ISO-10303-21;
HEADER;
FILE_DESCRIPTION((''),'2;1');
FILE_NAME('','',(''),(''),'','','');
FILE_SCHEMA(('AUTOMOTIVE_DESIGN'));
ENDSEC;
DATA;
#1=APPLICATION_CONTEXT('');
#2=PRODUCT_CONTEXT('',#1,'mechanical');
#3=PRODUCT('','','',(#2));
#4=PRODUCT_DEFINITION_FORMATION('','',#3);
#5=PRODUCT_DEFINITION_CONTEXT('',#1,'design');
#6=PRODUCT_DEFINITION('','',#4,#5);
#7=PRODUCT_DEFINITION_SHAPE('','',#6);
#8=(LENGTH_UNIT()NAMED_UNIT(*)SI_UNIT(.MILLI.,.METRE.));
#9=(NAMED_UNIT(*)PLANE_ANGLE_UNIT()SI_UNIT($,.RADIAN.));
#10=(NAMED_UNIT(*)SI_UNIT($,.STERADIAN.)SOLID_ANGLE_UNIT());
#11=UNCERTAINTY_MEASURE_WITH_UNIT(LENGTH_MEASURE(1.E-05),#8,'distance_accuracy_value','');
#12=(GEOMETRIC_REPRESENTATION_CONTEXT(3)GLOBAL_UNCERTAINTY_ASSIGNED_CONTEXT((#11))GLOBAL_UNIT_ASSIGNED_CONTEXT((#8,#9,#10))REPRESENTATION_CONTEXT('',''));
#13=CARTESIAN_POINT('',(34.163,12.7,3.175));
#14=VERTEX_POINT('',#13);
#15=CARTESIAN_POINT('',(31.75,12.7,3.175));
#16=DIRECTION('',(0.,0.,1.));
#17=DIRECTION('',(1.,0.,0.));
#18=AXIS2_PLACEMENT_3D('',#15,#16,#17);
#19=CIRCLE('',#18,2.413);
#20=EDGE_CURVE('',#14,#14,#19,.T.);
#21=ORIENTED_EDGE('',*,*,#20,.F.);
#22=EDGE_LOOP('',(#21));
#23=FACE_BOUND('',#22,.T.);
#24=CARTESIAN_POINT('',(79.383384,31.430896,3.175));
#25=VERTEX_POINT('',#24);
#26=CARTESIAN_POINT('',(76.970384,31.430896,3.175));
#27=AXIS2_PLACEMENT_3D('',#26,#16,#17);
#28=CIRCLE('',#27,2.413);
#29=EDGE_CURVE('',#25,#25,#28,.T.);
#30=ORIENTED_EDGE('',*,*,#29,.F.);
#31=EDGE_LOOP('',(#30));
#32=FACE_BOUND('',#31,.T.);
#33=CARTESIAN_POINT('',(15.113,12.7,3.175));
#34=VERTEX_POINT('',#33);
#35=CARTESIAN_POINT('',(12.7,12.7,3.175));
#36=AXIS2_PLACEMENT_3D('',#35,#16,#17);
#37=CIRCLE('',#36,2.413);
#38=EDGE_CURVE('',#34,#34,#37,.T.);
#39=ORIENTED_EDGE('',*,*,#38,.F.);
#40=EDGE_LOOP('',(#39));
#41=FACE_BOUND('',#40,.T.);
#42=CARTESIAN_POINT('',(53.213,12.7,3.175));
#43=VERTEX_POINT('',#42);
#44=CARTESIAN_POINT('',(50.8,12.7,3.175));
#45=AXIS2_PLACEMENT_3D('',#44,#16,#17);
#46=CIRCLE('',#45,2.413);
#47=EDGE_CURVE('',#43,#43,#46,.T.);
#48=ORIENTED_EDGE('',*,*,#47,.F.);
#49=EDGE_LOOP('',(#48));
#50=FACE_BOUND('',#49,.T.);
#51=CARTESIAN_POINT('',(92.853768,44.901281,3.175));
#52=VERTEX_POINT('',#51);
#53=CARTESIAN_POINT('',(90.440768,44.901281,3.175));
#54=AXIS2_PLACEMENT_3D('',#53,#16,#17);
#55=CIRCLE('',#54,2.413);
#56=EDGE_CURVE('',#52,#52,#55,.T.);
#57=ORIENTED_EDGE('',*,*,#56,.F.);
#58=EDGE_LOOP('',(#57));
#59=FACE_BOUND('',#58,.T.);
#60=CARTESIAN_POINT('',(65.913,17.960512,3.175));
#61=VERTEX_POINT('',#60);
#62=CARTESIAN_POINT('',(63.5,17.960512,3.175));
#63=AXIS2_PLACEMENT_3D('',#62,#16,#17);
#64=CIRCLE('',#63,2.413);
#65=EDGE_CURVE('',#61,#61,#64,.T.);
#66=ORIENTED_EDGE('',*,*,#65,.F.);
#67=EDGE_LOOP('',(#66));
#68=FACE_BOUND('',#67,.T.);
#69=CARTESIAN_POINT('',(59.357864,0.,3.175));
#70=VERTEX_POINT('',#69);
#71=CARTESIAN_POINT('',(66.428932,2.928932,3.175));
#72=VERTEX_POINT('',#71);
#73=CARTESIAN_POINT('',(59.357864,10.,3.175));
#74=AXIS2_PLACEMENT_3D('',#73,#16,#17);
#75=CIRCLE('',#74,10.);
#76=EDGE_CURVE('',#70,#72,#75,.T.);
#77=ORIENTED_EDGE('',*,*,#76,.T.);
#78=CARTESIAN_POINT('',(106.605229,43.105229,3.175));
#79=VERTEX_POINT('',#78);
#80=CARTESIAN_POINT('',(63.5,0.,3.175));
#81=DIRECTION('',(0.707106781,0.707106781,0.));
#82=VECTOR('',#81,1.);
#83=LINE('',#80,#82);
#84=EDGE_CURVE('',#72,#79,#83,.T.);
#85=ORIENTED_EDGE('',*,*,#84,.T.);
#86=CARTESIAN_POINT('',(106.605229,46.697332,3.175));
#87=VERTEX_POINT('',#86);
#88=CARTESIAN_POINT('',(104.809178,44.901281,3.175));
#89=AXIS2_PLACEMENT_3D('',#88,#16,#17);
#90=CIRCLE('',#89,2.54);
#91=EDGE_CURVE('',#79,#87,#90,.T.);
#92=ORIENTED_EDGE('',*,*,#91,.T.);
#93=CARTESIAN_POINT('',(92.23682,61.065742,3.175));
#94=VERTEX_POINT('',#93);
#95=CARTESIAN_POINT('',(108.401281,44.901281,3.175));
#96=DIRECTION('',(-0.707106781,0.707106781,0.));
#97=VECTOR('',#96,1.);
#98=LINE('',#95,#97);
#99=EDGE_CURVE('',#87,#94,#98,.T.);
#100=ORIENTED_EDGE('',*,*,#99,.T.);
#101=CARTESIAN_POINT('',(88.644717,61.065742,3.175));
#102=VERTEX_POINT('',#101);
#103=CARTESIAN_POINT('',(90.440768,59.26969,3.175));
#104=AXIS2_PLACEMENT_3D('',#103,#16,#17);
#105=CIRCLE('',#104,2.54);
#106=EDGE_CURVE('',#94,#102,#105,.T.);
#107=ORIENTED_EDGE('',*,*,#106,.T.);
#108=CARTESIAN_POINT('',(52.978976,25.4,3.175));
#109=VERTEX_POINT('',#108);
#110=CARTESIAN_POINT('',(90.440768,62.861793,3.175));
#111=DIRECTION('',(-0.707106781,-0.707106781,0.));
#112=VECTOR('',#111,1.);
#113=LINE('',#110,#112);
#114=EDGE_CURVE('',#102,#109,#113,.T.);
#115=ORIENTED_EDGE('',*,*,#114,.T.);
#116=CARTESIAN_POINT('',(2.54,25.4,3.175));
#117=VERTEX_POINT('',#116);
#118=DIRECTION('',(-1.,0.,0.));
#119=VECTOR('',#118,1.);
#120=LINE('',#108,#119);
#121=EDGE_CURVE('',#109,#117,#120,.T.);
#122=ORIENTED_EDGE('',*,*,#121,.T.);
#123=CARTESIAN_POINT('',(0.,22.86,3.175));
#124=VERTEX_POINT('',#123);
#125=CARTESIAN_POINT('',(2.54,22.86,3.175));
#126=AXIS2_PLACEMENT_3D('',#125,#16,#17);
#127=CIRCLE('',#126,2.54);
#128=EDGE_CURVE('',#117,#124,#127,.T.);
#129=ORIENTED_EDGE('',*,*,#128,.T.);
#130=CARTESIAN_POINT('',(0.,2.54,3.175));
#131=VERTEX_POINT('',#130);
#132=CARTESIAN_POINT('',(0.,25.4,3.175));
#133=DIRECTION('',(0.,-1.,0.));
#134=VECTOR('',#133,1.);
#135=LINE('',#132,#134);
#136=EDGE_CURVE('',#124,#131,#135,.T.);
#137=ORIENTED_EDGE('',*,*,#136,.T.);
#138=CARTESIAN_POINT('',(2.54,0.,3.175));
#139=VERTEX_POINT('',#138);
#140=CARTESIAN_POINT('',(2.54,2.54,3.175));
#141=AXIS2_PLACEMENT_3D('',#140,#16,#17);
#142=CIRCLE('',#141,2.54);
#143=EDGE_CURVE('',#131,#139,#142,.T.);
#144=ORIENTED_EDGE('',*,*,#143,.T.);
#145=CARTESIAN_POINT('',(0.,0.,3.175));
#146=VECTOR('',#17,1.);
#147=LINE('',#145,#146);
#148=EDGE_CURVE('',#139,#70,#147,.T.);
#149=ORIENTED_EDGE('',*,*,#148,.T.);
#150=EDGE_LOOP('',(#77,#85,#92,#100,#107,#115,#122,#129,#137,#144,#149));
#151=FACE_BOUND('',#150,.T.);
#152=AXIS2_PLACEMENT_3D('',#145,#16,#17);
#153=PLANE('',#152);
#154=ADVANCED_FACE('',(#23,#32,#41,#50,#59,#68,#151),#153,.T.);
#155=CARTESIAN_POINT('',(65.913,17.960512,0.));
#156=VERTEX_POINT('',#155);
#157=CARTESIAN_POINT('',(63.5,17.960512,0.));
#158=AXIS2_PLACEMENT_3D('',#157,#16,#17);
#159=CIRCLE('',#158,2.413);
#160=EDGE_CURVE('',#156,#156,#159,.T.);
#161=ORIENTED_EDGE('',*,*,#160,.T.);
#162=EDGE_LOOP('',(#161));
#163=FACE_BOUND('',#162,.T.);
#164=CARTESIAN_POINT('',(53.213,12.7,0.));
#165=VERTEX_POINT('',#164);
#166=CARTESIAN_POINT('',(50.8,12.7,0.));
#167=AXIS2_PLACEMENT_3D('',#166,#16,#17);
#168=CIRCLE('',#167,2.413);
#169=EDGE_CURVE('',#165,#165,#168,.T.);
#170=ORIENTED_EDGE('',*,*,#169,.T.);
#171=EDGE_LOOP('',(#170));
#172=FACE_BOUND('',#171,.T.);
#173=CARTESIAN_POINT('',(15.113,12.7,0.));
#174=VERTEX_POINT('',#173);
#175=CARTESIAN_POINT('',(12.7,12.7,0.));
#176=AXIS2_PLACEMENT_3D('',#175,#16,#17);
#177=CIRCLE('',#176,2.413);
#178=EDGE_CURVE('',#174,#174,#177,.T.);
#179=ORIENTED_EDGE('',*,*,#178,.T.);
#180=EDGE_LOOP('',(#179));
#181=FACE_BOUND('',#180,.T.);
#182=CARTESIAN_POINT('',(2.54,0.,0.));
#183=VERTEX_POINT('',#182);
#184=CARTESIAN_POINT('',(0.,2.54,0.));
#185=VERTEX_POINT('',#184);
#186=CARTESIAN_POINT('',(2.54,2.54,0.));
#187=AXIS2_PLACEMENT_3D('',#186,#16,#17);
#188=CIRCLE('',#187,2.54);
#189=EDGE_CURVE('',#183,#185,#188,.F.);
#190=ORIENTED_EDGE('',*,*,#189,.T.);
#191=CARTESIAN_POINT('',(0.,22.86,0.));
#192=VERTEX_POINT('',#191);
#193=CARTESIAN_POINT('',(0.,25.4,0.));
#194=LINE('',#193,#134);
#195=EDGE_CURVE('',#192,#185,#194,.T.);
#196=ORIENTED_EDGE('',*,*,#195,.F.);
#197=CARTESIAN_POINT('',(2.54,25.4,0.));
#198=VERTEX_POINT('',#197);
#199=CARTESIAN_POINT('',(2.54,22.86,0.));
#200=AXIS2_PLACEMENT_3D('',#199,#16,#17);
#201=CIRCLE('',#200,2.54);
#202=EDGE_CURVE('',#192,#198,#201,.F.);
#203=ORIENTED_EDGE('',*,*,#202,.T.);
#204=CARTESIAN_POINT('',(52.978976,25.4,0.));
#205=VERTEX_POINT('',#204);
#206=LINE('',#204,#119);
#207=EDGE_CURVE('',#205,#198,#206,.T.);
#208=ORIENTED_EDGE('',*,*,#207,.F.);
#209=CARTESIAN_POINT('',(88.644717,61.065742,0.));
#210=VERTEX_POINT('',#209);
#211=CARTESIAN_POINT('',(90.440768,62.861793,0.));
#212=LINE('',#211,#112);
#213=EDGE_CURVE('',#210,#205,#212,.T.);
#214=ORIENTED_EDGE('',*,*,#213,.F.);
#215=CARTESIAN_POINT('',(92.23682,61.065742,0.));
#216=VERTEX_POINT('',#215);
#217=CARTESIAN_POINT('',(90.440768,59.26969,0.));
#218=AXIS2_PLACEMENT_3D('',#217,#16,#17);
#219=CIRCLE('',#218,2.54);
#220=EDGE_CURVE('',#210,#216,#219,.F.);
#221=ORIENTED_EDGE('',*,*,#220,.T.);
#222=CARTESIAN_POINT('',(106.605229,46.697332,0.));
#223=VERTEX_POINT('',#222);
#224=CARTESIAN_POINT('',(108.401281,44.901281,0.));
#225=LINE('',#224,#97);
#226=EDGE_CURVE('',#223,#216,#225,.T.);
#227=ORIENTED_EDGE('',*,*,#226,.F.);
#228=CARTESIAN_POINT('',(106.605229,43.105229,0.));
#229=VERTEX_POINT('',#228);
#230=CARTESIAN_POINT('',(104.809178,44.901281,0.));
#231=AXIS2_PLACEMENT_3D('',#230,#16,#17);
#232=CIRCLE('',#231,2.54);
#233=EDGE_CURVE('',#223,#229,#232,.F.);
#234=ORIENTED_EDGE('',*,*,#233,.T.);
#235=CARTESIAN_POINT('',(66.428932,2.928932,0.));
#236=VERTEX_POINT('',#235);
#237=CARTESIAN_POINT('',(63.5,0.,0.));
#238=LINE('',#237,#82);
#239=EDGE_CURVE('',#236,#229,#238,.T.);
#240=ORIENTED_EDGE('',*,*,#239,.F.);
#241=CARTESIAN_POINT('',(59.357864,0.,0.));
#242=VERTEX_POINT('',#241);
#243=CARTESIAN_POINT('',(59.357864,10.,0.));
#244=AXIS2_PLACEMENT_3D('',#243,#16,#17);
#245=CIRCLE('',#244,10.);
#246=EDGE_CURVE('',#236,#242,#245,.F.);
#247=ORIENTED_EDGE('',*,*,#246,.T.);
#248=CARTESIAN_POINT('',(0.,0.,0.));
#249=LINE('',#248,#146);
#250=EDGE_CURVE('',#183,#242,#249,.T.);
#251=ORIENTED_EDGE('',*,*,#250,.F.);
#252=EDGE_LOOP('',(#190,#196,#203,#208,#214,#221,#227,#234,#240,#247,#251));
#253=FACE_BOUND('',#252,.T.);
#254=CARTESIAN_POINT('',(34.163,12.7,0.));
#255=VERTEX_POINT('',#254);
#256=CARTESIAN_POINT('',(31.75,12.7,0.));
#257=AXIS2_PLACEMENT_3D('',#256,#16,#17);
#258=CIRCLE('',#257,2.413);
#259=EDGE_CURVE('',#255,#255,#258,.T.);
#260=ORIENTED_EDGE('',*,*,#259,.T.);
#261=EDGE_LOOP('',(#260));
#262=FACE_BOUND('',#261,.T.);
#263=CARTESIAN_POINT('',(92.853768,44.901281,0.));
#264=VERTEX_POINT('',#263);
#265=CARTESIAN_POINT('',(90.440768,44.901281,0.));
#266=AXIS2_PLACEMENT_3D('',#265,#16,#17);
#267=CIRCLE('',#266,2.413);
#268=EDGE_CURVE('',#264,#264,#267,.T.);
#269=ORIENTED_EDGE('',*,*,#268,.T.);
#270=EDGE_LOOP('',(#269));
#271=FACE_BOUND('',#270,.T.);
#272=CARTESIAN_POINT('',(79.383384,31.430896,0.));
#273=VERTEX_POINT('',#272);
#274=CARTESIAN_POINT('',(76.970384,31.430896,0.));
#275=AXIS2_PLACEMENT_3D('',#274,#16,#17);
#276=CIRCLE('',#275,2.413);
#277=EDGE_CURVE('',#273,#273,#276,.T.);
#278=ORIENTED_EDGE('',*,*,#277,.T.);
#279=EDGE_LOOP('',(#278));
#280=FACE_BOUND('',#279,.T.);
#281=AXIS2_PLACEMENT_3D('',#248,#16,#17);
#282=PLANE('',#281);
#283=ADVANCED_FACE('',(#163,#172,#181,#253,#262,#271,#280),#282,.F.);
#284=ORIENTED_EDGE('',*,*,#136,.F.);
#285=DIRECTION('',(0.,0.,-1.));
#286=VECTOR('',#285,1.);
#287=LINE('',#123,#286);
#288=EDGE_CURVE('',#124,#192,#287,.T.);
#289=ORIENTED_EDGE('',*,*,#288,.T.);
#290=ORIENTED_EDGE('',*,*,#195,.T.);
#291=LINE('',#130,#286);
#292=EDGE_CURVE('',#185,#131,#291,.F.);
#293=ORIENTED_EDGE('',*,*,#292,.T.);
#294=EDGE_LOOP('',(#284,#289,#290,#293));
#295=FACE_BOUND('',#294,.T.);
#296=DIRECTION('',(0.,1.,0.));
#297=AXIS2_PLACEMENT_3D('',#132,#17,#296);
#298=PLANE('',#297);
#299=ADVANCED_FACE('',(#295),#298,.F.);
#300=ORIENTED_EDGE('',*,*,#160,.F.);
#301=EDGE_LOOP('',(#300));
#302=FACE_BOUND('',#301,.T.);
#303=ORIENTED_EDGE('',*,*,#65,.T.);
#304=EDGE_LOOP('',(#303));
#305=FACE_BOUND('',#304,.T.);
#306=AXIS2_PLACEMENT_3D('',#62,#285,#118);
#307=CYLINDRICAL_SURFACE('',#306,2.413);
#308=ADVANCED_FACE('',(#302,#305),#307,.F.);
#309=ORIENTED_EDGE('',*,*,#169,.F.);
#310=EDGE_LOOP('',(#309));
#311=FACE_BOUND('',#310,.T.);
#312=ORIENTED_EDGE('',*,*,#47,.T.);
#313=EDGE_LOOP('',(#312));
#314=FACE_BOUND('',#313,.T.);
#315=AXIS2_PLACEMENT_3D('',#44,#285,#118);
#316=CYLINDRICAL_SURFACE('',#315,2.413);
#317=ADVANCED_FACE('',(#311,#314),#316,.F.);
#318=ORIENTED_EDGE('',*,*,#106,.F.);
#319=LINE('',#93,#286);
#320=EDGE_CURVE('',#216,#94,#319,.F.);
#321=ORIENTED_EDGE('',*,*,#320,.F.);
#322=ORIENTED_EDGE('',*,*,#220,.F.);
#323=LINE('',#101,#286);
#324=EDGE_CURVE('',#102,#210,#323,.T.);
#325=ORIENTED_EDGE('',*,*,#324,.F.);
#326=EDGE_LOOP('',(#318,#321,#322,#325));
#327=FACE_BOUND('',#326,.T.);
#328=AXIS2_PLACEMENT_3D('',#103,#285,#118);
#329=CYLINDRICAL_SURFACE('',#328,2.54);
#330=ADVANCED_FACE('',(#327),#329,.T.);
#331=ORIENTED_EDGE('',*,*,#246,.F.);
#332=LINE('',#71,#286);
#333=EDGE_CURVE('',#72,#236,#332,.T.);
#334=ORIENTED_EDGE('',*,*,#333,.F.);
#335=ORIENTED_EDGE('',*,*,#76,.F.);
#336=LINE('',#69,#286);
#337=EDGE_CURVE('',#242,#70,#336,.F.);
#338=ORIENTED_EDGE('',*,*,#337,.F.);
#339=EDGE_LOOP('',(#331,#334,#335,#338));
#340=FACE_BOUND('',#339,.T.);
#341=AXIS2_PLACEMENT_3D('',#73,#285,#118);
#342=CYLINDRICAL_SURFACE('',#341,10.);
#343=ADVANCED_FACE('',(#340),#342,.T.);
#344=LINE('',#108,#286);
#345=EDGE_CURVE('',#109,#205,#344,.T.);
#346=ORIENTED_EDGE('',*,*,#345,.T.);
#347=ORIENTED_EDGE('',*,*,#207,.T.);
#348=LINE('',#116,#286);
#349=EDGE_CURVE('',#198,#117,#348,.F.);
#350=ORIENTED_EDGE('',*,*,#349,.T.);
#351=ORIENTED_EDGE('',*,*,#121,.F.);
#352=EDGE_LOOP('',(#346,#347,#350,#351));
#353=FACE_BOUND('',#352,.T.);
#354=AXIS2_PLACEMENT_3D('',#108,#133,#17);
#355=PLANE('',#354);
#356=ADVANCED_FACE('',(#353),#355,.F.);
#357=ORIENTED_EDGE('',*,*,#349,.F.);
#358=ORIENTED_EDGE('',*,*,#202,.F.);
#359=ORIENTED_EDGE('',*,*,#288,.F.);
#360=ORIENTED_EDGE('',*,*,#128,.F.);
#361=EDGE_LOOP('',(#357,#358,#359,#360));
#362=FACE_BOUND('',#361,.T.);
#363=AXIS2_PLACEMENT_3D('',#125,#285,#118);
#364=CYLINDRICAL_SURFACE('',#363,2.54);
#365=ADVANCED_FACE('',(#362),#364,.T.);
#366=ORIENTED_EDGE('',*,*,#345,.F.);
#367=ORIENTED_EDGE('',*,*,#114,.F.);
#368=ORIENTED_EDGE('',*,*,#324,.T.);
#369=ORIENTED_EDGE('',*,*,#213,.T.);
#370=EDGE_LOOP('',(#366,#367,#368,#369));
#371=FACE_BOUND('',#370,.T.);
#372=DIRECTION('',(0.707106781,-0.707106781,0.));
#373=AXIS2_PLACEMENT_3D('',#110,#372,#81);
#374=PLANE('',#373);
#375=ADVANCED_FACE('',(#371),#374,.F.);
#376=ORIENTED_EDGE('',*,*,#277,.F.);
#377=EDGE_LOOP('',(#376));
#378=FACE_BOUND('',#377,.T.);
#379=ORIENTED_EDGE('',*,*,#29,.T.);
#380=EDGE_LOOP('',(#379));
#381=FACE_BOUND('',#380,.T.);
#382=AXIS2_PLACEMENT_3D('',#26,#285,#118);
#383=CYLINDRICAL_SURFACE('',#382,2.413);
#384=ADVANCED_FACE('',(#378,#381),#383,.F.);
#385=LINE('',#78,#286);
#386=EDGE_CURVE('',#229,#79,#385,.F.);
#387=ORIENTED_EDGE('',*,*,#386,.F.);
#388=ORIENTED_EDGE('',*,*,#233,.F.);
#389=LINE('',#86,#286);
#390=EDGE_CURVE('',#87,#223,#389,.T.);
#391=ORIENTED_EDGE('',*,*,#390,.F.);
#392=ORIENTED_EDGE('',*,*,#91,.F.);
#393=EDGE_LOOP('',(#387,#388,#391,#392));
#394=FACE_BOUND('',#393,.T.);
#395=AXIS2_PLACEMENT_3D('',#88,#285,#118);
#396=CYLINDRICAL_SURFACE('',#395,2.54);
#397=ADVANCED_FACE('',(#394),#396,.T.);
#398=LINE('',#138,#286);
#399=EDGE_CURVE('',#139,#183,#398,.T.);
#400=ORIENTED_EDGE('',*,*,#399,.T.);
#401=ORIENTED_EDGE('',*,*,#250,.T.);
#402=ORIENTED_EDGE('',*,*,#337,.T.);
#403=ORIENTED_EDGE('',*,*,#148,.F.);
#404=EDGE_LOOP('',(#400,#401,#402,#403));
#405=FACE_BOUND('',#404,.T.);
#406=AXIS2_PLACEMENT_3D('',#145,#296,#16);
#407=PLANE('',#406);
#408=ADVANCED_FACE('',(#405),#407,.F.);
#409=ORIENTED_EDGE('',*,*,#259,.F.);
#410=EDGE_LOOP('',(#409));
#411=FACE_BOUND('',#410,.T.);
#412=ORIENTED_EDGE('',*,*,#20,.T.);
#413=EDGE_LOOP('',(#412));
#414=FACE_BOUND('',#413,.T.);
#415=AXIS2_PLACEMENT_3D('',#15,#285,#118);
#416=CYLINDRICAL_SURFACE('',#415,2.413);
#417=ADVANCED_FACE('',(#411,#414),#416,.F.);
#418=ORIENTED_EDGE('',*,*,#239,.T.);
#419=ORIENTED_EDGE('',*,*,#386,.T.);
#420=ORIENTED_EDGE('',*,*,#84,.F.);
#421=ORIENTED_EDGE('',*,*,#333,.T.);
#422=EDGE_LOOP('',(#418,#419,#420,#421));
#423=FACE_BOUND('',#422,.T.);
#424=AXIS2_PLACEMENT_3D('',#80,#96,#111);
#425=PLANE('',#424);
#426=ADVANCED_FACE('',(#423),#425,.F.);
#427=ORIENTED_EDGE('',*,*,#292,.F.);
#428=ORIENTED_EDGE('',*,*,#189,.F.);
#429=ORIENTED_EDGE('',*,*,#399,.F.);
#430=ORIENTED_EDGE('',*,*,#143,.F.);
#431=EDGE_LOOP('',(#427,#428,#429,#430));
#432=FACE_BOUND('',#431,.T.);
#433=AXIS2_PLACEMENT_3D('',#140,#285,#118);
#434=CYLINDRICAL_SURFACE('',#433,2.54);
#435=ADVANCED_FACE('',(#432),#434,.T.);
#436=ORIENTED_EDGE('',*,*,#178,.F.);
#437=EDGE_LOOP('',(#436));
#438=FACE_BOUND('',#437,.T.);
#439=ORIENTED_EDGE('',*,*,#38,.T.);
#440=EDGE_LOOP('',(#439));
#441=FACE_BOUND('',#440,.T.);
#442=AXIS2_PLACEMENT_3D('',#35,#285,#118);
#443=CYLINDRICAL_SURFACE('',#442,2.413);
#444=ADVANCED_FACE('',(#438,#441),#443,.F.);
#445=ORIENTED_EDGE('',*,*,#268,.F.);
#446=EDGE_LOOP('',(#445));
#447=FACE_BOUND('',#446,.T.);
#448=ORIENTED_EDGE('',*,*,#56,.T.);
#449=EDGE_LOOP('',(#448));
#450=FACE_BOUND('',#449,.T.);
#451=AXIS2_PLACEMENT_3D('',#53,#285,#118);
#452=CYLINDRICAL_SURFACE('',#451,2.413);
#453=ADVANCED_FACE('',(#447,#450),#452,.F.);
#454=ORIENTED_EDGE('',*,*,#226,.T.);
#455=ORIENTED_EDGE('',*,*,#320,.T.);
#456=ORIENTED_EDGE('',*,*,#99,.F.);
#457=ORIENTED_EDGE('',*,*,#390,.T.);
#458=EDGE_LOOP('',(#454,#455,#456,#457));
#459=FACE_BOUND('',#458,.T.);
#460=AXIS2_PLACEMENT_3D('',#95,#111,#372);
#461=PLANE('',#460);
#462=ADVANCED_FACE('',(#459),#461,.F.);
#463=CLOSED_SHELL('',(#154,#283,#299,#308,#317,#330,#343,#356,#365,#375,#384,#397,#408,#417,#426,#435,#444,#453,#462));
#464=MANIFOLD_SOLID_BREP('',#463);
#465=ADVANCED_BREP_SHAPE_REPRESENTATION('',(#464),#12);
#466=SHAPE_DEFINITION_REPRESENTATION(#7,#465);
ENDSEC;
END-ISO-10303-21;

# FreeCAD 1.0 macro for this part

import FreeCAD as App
import Part
import Sketcher

V = App.Vector
Q = App.Units.Quantity


def edges_at(feature, points):
    """Names of the edges that pass closest to the given points."""
    edges = feature.Shape.Edges
    near = lambda p: min(range(len(edges)), key=lambda i: edges[i].distToShape(Part.Vertex(*p))[0])
    return sorted({f"Edge{near(p) + 1}" for p in points})

doc = App.newDocument("Part")
body = doc.addObject("PartDesign::Body", "Body")

# Sketch on XY plane
sketch1 = body.newObject("Sketcher::SketchObject", "Sketch")
sketch1.AttachmentSupport = (doc.getObject("XY_Plane"), [""])
sketch1.MapMode = "FlatFace"
sketch1.addGeometry([
    Part.LineSegment(V(0, 0, 0), V(63.5, 0, 0)),  # 0
    Part.LineSegment(V(63.5, 0, 0), V(108.401281, 44.901281, 0)),  # 1
    Part.LineSegment(V(108.401281, 44.901281, 0), V(90.440768, 62.861793, 0)),  # 2
    Part.LineSegment(V(90.440768, 62.861793, 0), V(52.978976, 25.4, 0)),  # 3
    Part.LineSegment(V(52.978976, 25.4, 0), V(0, 25.4, 0)),  # 4
    Part.LineSegment(V(0, 25.4, 0), V(0, 0, 0)),  # 5
    Part.Circle(V(12.7, 12.7, 0), V(0, 0, 1), 2.413),  # 6
    Part.Circle(V(31.75, 12.7, 0), V(0, 0, 1), 2.413),  # 7
    Part.Circle(V(50.8, 12.7, 0), V(0, 0, 1), 2.413),  # 8
    Part.Circle(V(63.5, 17.960512, 0), V(0, 0, 1), 2.413),  # 9
    Part.Circle(V(76.970384, 31.430896, 0), V(0, 0, 1), 2.413),  # 10
    Part.Circle(V(90.440768, 44.901281, 0), V(0, 0, 1), 2.413),  # 11
], False)
sketch1.addConstraint([
    Sketcher.Constraint("Coincident", 0, 2, 1, 1),
    Sketcher.Constraint("Coincident", 1, 2, 2, 1),
    Sketcher.Constraint("Coincident", 2, 2, 3, 1),
    Sketcher.Constraint("Coincident", 3, 2, 4, 1),
    Sketcher.Constraint("Coincident", 4, 2, 5, 1),
    Sketcher.Constraint("Coincident", 5, 2, 0, 1),
    Sketcher.Constraint("Horizontal", 0),
    Sketcher.Constraint("Horizontal", 4),
    Sketcher.Constraint("Vertical", 5),
    Sketcher.Constraint("Coincident", 5, 2, -1, 1),
    Sketcher.Constraint("Equal", 6, 7),
    Sketcher.Constraint("Equal", 7, 8),
    Sketcher.Constraint("Equal", 8, 9),
    Sketcher.Constraint("Equal", 9, 10),
    Sketcher.Constraint("Equal", 10, 11),
    Sketcher.Constraint("Perpendicular", 1, 2),
    Sketcher.Constraint("Perpendicular", 2, 3),
    Sketcher.Constraint("Horizontal", 6, 3, 7, 3),
    Sketcher.Constraint("Horizontal", 7, 3, 8, 3),
    Sketcher.Constraint("Horizontal", 11, 3, 1, 2),
    Sketcher.Constraint("Vertical", 9, 3, 0, 2),
    Sketcher.Constraint("Vertical", 11, 3, 2, 2),
    Sketcher.Constraint("Diameter", 6, Q("0.19 in")),
    Sketcher.Constraint("DistanceY", 5, 2, 5, 1, Q("1 in")),
    Sketcher.Constraint("Distance", 2, Q("1 in")),
    Sketcher.Constraint("DistanceX", 0, 1, 0, 2, Q("2.5 in")),
    Sketcher.Constraint("DistanceX", -1, 1, 8, 3, Q("2 in")),
    Sketcher.Constraint("Angle", 1, Q("45 deg")),
    Sketcher.Constraint("DistanceX", 6, 3, 9, 3, Q("2 in")),
    Sketcher.Constraint("Distance", 1, Q("2.5 in")),
    Sketcher.Constraint("DistanceY", -1, 1, 6, 3, Q("0.5 in")),
    Sketcher.Constraint("DistanceX", -1, 1, 7, 3, Q("1.25 in")),
    Sketcher.Constraint("DistanceY", 9, 3, 11, 3, 26.940768),
    Sketcher.Constraint("DistanceX", 3, 2, 10, 3, 23.991409),
    Sketcher.Constraint("DistanceY", -1, 1, 10, 3, 31.430896),
])
pad1 = body.newObject("PartDesign::Pad", "Pad")
pad1.Profile = sketch1
pad1.Length = Q("0.125 in")
doc.recompute()

fillet = body.newObject("PartDesign::Fillet", "Fillet")
fillet.Base = (pad1, edges_at(pad1, [(63.5, 0, 1.587)]))
fillet.Radius = 10
doc.recompute()

fillet2 = body.newObject("PartDesign::Fillet", "Fillet001")
fillet2.Base = (fillet, edges_at(fillet, [(0, 25.4, 1.587)]))
fillet2.Radius = Q("0.1 in")
doc.recompute()

fillet3 = body.newObject("PartDesign::Fillet", "Fillet002")
fillet3.Base = (fillet2, edges_at(fillet2, [(90.441, 62.862, 1.587), (108.401, 44.901, 1.587), (0, 0, 1.587)]))
fillet3.Radius = Q("0.1 in")

doc.recompute()
